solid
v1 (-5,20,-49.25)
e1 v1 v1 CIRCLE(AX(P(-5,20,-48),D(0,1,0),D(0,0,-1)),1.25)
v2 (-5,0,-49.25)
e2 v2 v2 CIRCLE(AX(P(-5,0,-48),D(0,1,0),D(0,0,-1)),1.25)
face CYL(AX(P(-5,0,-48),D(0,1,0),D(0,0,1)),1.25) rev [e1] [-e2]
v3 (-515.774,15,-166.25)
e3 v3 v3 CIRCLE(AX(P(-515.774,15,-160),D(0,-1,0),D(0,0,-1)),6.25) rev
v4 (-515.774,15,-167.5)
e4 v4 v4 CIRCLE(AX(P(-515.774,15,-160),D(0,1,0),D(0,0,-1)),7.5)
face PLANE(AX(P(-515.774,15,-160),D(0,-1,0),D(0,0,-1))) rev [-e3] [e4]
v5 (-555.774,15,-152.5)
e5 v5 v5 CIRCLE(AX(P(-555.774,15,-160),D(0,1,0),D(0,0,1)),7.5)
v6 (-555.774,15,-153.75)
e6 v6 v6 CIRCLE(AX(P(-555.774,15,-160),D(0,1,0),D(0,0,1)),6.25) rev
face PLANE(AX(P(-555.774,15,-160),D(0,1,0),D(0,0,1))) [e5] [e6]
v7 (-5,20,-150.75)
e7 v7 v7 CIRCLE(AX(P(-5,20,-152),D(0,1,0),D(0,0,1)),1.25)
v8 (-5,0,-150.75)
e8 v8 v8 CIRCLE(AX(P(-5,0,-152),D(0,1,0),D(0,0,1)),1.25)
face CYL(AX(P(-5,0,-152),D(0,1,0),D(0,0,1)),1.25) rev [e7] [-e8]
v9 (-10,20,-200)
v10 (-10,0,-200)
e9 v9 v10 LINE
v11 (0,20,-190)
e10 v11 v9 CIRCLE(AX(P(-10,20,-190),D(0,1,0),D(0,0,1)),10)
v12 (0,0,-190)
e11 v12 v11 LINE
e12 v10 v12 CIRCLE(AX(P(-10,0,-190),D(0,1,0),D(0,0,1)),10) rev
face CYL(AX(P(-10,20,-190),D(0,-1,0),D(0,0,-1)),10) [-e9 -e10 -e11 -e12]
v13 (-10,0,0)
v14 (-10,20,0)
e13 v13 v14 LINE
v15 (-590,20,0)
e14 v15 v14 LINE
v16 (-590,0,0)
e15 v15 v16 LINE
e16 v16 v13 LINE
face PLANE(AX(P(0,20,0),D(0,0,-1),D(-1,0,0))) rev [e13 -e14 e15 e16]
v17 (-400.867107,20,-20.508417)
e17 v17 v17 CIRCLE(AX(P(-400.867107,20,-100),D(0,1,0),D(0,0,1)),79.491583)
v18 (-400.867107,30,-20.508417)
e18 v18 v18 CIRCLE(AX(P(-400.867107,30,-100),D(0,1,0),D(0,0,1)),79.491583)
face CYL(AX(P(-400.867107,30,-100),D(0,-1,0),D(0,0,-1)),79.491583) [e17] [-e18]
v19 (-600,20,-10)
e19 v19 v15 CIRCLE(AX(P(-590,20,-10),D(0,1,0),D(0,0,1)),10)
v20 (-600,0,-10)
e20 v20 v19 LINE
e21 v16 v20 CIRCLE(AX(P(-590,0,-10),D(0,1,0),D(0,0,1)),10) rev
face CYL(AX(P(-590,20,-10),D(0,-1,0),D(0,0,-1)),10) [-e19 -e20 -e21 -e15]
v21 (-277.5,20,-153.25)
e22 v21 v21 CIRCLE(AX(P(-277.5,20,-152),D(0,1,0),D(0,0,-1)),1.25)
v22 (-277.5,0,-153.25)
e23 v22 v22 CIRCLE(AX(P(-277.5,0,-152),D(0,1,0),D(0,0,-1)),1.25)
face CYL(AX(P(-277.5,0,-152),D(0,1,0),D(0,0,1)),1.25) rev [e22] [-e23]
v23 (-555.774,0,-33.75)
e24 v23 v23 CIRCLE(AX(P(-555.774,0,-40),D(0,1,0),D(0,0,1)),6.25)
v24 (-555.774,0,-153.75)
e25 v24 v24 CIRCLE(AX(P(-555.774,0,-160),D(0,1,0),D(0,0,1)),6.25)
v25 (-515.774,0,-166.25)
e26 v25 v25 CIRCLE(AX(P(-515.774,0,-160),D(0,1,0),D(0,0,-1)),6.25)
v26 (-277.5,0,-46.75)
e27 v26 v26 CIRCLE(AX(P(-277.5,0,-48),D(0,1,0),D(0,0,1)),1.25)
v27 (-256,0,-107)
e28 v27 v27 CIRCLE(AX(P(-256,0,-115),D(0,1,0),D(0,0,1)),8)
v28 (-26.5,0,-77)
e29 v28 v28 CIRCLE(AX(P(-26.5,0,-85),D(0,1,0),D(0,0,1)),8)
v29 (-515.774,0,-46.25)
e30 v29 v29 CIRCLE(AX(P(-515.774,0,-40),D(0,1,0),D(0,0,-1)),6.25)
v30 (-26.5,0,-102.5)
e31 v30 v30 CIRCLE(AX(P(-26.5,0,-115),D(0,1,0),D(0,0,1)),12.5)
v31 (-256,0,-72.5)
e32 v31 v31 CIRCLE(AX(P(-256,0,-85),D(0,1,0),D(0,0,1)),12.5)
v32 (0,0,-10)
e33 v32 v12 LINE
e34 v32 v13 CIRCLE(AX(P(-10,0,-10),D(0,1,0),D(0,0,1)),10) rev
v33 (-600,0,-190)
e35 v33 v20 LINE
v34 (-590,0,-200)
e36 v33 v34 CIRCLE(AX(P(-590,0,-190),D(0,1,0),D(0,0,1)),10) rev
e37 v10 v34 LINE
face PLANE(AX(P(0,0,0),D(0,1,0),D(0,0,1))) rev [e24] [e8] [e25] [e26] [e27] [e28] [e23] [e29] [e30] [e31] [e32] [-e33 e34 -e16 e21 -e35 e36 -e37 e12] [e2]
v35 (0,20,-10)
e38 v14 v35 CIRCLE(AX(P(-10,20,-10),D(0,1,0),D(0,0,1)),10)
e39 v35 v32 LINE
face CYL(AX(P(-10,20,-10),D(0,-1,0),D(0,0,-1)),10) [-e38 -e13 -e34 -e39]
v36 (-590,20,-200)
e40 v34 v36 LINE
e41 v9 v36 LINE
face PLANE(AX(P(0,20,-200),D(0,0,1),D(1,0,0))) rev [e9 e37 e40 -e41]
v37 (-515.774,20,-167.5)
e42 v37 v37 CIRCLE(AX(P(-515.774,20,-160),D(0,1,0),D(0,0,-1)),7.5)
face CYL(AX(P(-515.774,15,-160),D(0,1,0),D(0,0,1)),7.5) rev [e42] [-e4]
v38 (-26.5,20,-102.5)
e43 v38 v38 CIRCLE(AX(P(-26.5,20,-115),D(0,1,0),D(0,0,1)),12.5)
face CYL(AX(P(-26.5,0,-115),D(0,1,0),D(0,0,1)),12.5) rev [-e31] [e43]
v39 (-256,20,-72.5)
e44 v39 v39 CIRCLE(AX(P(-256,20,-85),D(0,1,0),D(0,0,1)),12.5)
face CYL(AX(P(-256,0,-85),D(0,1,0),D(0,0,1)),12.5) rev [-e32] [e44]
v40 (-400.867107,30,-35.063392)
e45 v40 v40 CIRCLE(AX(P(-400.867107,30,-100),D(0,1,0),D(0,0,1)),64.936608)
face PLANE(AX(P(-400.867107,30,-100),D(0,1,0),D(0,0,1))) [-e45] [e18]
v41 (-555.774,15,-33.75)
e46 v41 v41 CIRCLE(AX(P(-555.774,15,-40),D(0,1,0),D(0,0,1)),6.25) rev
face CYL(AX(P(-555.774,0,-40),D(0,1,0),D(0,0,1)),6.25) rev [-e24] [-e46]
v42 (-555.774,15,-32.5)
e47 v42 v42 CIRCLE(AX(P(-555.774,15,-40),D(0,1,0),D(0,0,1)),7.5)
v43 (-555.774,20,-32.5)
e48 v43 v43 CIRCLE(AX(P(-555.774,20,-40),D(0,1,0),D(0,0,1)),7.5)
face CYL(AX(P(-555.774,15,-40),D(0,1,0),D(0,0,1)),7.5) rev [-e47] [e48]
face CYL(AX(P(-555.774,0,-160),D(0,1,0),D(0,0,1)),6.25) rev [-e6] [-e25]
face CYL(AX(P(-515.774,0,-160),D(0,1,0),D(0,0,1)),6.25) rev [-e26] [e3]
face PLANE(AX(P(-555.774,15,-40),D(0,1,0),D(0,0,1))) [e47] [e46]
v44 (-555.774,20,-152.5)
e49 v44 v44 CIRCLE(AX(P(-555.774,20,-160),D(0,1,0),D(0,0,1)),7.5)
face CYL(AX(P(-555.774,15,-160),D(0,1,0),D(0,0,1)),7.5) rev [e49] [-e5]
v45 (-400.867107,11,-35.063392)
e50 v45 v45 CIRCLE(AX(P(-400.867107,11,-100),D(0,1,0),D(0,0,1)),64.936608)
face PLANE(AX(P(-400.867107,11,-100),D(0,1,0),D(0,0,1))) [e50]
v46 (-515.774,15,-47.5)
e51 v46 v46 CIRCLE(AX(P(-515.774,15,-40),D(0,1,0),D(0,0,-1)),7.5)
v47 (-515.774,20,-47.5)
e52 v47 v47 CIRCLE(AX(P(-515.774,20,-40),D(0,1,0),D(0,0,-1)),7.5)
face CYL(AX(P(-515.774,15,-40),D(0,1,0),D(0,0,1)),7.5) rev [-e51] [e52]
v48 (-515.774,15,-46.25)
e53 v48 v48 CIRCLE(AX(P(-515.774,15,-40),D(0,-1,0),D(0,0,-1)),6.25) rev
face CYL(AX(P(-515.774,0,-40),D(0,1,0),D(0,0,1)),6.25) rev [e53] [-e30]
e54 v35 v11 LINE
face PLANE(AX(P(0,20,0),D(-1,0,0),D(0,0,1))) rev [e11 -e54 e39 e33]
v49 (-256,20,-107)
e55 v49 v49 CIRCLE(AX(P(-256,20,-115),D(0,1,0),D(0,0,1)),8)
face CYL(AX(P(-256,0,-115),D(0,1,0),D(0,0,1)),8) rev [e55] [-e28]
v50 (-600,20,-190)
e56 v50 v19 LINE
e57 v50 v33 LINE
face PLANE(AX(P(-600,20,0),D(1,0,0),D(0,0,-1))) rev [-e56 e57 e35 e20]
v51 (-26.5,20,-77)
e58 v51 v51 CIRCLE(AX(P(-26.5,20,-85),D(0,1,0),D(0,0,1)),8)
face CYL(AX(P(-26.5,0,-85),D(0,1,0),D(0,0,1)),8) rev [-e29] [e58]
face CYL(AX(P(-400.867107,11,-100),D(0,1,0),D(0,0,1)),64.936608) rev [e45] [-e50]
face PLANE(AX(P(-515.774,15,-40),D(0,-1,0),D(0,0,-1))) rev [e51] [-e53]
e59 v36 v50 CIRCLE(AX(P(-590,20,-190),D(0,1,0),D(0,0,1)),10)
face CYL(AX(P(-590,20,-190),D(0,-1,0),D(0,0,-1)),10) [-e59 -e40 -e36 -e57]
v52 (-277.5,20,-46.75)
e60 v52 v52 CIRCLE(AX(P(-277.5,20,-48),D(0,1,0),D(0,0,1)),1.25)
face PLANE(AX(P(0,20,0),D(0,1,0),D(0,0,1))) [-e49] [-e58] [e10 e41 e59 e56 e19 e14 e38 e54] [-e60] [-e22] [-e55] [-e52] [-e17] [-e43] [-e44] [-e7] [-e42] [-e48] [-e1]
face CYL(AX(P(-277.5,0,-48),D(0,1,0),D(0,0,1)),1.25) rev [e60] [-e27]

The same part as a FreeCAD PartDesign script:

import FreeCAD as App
import Part
import Sketcher
Q = App.Units.Quantity


def edges_at(feature, points):
    """Names of the edges that pass closest to the given points."""
    edges = feature.Shape.Edges
    near = lambda p: min(range(len(edges)), key=lambda i: edges[i].distToShape(Part.Vertex(*p))[0])
    return sorted({f"Edge{near(p) + 1}" for p in points})


def add_polygon(sketch, points):
    """Adds a closed chain of lines whose ends are joined by coincident constraints."""
    first, n = sketch.GeometryCount, len(points)
    for a, b in zip(points, points[1:] + points[:1]):
        sketch.addGeometry(Part.LineSegment(App.Vector(*a, 0), App.Vector(*b, 0)), False)
    for i in range(n):
        sketch.addConstraint(Sketcher.Constraint("Coincident", first + i, 2, first + (i + 1) % n, 1))

doc = App.newDocument("Part")
body = doc.addObject("PartDesign::Body", "Body")

# Sketch on XZ plane
sketch1 = doc.addObject("Sketcher::SketchObject", "Sketch")
body.addObject(sketch1)
sketch1.AttachmentSupport = (doc.XZ_Plane, [""])
sketch1.MapMode = "FlatFace"
add_polygon(sketch1, [(-600, -200), (-600, 0), (0, 0), (0, -200)])  # lines 0-3
sketch1.addConstraint(Sketcher.Constraint("Vertical", 0))
sketch1.addConstraint(Sketcher.Constraint("Horizontal", 1))
sketch1.addConstraint(Sketcher.Constraint("Vertical", 2))
sketch1.addConstraint(Sketcher.Constraint("Horizontal", 3))
sketch1.addConstraint(Sketcher.Constraint("Coincident", 1, 2, -1, 1))
sketch1.addConstraint(Sketcher.Constraint("DistanceX", 1, 1, 1, 2, Q("600 mm")))
sketch1.addConstraint(Sketcher.Constraint("DistanceY", 0, 1, 0, 2, Q("200 mm")))
pad1 = doc.addObject("PartDesign::Pad", "Pad")
body.addObject(pad1)
pad1.Profile = sketch1
pad1.Length = 20
pad1.Reversed = True

# Sketch on XZ plane
sketch2 = doc.addObject("Sketcher::SketchObject", "Sketch001")
body.addObject(sketch2)
sketch2.AttachmentSupport = (doc.XZ_Plane, [""])
sketch2.MapMode = "FlatFace"
sketch2.AttachmentOffset = App.Placement(App.Vector(0, 0, -20), App.Rotation())
sketch2.addGeometry(Part.Circle(App.Vector(-556, -160, 0), App.Vector(0, 0, 1), 6), False)
sketch2.addGeometry(Part.Circle(App.Vector(-556, -40, 0), App.Vector(0, 0, 1), 6), False)
sketch2.addGeometry(Part.Circle(App.Vector(-516, -40, 0), App.Vector(0, 0, 1), 6), False)
sketch2.addGeometry(Part.Circle(App.Vector(-516, -160, 0), App.Vector(0, 0, 1), 6), False)
sketch2.addConstraint(Sketcher.Constraint("Equal", 0, 1))
sketch2.addConstraint(Sketcher.Constraint("Equal", 1, 2))
sketch2.addConstraint(Sketcher.Constraint("Equal", 2, 3))
sketch2.addConstraint(Sketcher.Constraint("Horizontal", 1, 3, 2, 3))
sketch2.addConstraint(Sketcher.Constraint("Horizontal", 0, 3, 3, 3))
sketch2.addConstraint(Sketcher.Constraint("Vertical", 0, 3, 1, 3))
sketch2.addConstraint(Sketcher.Constraint("Vertical", 2, 3, 3, 3))
sketch2.addConstraint(Sketcher.Constraint("Diameter", 0, Q("12.5 mm")))
sketch2.addConstraint(Sketcher.Constraint("DistanceY", 0, 3, -1, 1, Q("160 mm")))
sketch2.addConstraint(Sketcher.Constraint("DistanceY", 1, 3, -1, 1, Q("40 mm")))
sketch2.addConstraint(Sketcher.Constraint("DistanceX", 1, 3, 2, 3, Q("40 mm")))
sketch2.addConstraint(Sketcher.Constraint("DistanceX", 0, 3, -1, 1, Q("555.774 mm")))
pocket1 = doc.addObject("PartDesign::Pocket", "Pocket")
body.addObject(pocket1)
pocket1.Profile = sketch2
pocket1.Type = "ThroughAll"
pocket1.Reversed = True

# Sketch on XZ plane
sketch3 = doc.addObject("Sketcher::SketchObject", "Sketch002")
body.addObject(sketch3)
sketch3.AttachmentSupport = (doc.XZ_Plane, [""])
sketch3.MapMode = "FlatFace"
sketch3.AttachmentOffset = App.Placement(App.Vector(0, 0, -20), App.Rotation())
sketch3.addGeometry(Part.Circle(App.Vector(-556, -160, 0), App.Vector(0, 0, 1), 8), False)
sketch3.addGeometry(Part.Circle(App.Vector(-556, -40, 0), App.Vector(0, 0, 1), 8), False)
sketch3.addGeometry(Part.Circle(App.Vector(-516, -40, 0), App.Vector(0, 0, 1), 8), False)
sketch3.addGeometry(Part.Circle(App.Vector(-516, -160, 0), App.Vector(0, 0, 1), 8), False)
sketch3.addConstraint(Sketcher.Constraint("Equal", 0, 1))
sketch3.addConstraint(Sketcher.Constraint("Equal", 1, 2))
sketch3.addConstraint(Sketcher.Constraint("Equal", 2, 3))
sketch3.addConstraint(Sketcher.Constraint("Horizontal", 1, 3, 2, 3))
sketch3.addConstraint(Sketcher.Constraint("Horizontal", 0, 3, 3, 3))
sketch3.addConstraint(Sketcher.Constraint("Vertical", 0, 3, 1, 3))
sketch3.addConstraint(Sketcher.Constraint("Vertical", 2, 3, 3, 3))
sketch3.addConstraint(Sketcher.Constraint("Diameter", 0, Q("15 mm")))
sketch3.addConstraint(Sketcher.Constraint("DistanceY", 0, 3, -1, 1, Q("160 mm")))
sketch3.addConstraint(Sketcher.Constraint("DistanceY", 1, 3, -1, 1, Q("40 mm")))
sketch3.addConstraint(Sketcher.Constraint("DistanceX", 1, 3, 2, 3, Q("40 mm")))
sketch3.addConstraint(Sketcher.Constraint("DistanceX", 0, 3, -1, 1, Q("555.774 mm")))
pocket2 = doc.addObject("PartDesign::Pocket", "Pocket001")
body.addObject(pocket2)
pocket2.Profile = sketch3
pocket2.Length = 5
pocket2.Reversed = True

# Sketch on XZ plane
sketch4 = doc.addObject("Sketcher::SketchObject", "Sketch003")
body.addObject(sketch4)
sketch4.AttachmentSupport = (doc.XZ_Plane, [""])
sketch4.MapMode = "FlatFace"
sketch4.AttachmentOffset = App.Placement(App.Vector(0, 0, -20), App.Rotation())
sketch4.addGeometry(Part.Circle(App.Vector(-277.5, -48, 0), App.Vector(0, 0, 1), 1.2), False)
sketch4.addGeometry(Part.Circle(App.Vector(-277.5, -152, 0), App.Vector(0, 0, 1), 1.2), False)
sketch4.addGeometry(Part.Circle(App.Vector(-5, -48, 0), App.Vector(0, 0, 1), 1.2), False)
sketch4.addGeometry(Part.Circle(App.Vector(-5, -152, 0), App.Vector(0, 0, 1), 1.2), False)
sketch4.addConstraint(Sketcher.Constraint("Equal", 0, 1))
sketch4.addConstraint(Sketcher.Constraint("Equal", 1, 2))
sketch4.addConstraint(Sketcher.Constraint("Equal", 2, 3))
sketch4.addConstraint(Sketcher.Constraint("Horizontal", 0, 3, 2, 3))
sketch4.addConstraint(Sketcher.Constraint("Horizontal", 1, 3, 3, 3))
sketch4.addConstraint(Sketcher.Constraint("Vertical", 0, 3, 1, 3))
sketch4.addConstraint(Sketcher.Constraint("Vertical", 2, 3, 3, 3))
sketch4.addConstraint(Sketcher.Constraint("Diameter", 0, Q("2.5 mm")))
sketch4.addConstraint(Sketcher.Constraint("DistanceY", 0, 3, -1, 1, Q("48 mm")))
sketch4.addConstraint(Sketcher.Constraint("DistanceY", 1, 3, -1, 1, Q("152 mm")))
sketch4.addConstraint(Sketcher.Constraint("DistanceX", 2, 3, -1, 1, Q("5 mm")))
sketch4.addConstraint(Sketcher.Constraint("DistanceX", 0, 3, -1, 1, Q("277.5 mm")))
pocket3 = doc.addObject("PartDesign::Pocket", "Pocket002")
body.addObject(pocket3)
pocket3.Profile = sketch4
pocket3.Type = "ThroughAll"
pocket3.Reversed = True
doc.recompute()

fillet = doc.addObject("PartDesign::Fillet", "Fillet")
body.addObject(fillet)
fillet.Base = (pocket3, edges_at(pocket3, [
    (0, 10, 0),
    (-600, 10, 0),
    (-600, 10, -200),
    (0, 10, -200),
]))
fillet.Radius = 10

# Sketch on XZ plane
sketch5 = doc.addObject("Sketcher::SketchObject", "Sketch004")
body.addObject(sketch5)
sketch5.AttachmentSupport = (doc.XZ_Plane, [""])
sketch5.MapMode = "FlatFace"
sketch5.AttachmentOffset = App.Placement(App.Vector(0, 0, -20), App.Rotation())
sketch5.addGeometry(Part.Circle(App.Vector(-401, -100, 0), App.Vector(0, 0, 1), 79), False)
sketch5.addConstraint(Sketcher.Constraint("DistanceY", 0, 3, -1, 1, Q("100 mm")))
sketch5.addConstraint(Sketcher.Constraint("Diameter", 0, Q("158.983166 mm")))
sketch5.addConstraint(Sketcher.Constraint("DistanceX", 0, 3, -1, 1, Q("400.867107 mm")))
pad2 = doc.addObject("PartDesign::Pad", "Pad001")
body.addObject(pad2)
pad2.Profile = sketch5
pad2.Length = 10
pad2.Reversed = True

# Sketch on XZ plane
sketch6 = doc.addObject("Sketcher::SketchObject", "Sketch005")
body.addObject(sketch6)
sketch6.AttachmentSupport = (doc.XZ_Plane, [""])
sketch6.MapMode = "FlatFace"
sketch6.AttachmentOffset = App.Placement(App.Vector(0, 0, -30), App.Rotation())
sketch6.addGeometry(Part.Circle(App.Vector(-401, -100, 0), App.Vector(0, 0, 1), 65), False)
sketch6.addConstraint(Sketcher.Constraint("DistanceY", 0, 3, -1, 1, Q("100 mm")))
sketch6.addConstraint(Sketcher.Constraint("Diameter", 0, Q("129.873216 mm")))
sketch6.addConstraint(Sketcher.Constraint("DistanceX", 0, 3, -1, 1, Q("400.867107 mm")))
pocket4 = doc.addObject("PartDesign::Pocket", "Pocket003")
body.addObject(pocket4)
pocket4.Profile = sketch6
pocket4.Length = 19
pocket4.Reversed = True

# Sketch on XZ plane
sketch7 = doc.addObject("Sketcher::SketchObject", "Sketch006")
body.addObject(sketch7)
sketch7.AttachmentSupport = (doc.XZ_Plane, [""])
sketch7.MapMode = "FlatFace"
sketch7.AttachmentOffset = App.Placement(App.Vector(0, 0, -20), App.Rotation())
sketch7.addGeometry(Part.Circle(App.Vector(-26, -115, 0), App.Vector(0, 0, 1), 12), False)
sketch7.addGeometry(Part.Circle(App.Vector(-26, -85, 0), App.Vector(0, 0, 1), 8), False)
sketch7.addGeometry(Part.Circle(App.Vector(-256, -115, 0), App.Vector(0, 0, 1), 8), False)
sketch7.addGeometry(Part.Circle(App.Vector(-256, -85, 0), App.Vector(0, 0, 1), 12), False)
sketch7.addConstraint(Sketcher.Constraint("Equal", 1, 2))
sketch7.addConstraint(Sketcher.Constraint("Equal", 0, 3))
sketch7.addConstraint(Sketcher.Constraint("Horizontal", 0, 3, 2, 3))
sketch7.addConstraint(Sketcher.Constraint("Horizontal", 1, 3, 3, 3))
sketch7.addConstraint(Sketcher.Constraint("Vertical", 0, 3, 1, 3))
sketch7.addConstraint(Sketcher.Constraint("Vertical", 2, 3, 3, 3))
sketch7.addConstraint(Sketcher.Constraint("Diameter", 0, Q("25 mm")))
sketch7.addConstraint(Sketcher.Constraint("Diameter", 1, Q("16 mm")))
sketch7.addConstraint(Sketcher.Constraint("DistanceY", 0, 3, -1, 1, Q("115 mm")))
sketch7.addConstraint(Sketcher.Constraint("DistanceY", 1, 3, -1, 1, Q("85 mm")))
sketch7.addConstraint(Sketcher.Constraint("DistanceX", 2, 3, -1, 1, Q("256 mm")))
sketch7.addConstraint(Sketcher.Constraint("DistanceX", 0, 3, -1, 1, Q("26.5 mm")))
pocket5 = doc.addObject("PartDesign::Pocket", "Pocket004")
body.addObject(pocket5)
pocket5.Profile = sketch7
pocket5.Type = "ThroughAll"
pocket5.Reversed = True

doc.recompute()
